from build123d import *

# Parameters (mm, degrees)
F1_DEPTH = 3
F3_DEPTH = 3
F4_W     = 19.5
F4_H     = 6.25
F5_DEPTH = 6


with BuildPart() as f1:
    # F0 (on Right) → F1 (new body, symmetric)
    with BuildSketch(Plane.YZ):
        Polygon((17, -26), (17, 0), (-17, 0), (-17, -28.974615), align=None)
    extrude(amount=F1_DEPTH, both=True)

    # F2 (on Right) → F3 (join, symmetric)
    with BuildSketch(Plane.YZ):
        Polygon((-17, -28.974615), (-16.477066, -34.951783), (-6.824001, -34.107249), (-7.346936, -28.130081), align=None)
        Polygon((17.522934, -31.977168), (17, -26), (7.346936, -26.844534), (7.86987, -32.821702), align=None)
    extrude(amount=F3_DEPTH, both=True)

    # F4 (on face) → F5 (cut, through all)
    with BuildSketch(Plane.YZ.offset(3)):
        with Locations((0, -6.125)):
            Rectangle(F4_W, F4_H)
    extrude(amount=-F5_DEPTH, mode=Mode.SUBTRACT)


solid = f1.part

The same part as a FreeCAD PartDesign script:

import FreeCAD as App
import Part
import Sketcher
Q = App.Units.Quantity

doc = App.newDocument("Part")
body = doc.addObject("PartDesign::Body", "Body")

# Sketch on YZ plane
sketch1 = body.newObject("Sketcher::SketchObject", "Sketch")
sketch1.AttachmentSupport = (doc.getObject("YZ_Plane"), [""])
sketch1.MapMode = "FlatFace"
sketch1.addGeometry([
    Part.LineSegment(App.Vector(17, -26, 0), App.Vector(17, 0, 0)),
    Part.LineSegment(App.Vector(17, 0, 0), App.Vector(-17, 0, 0)),
    Part.LineSegment(App.Vector(-17, 0, 0), App.Vector(-17, -29, 0)),
    Part.LineSegment(App.Vector(-17, -29, 0), App.Vector(17, -26, 0)),
], False)
sketch1.addConstraint([
    Sketcher.Constraint("Coincident", 0, 2, 1, 1),
    Sketcher.Constraint("Coincident", 1, 2, 2, 1),
    Sketcher.Constraint("Coincident", 2, 2, 3, 1),
    Sketcher.Constraint("Coincident", 3, 2, 0, 1),
    Sketcher.Constraint("Vertical", 0),
    Sketcher.Constraint("Horizontal", 1),
    Sketcher.Constraint("Vertical", 2),
    Sketcher.Constraint("Symmetric", 0, 2, 1, 2, -1, 1),
    Sketcher.Constraint("DistanceX", 1, 2, 1, 1, Q("34 mm")),
    Sketcher.Constraint("DistanceY", 0, 1, 0, 2, Q("26 mm")),
    Sketcher.Constraint("Angle", 3, Q("5.000001 deg")),
])
pad1 = body.newObject("PartDesign::Pad", "Pad")
pad1.Profile = sketch1
pad1.Length = 6
pad1.Midplane = True

# Sketch on YZ plane
sketch2 = body.newObject("Sketcher::SketchObject", "Sketch001")
sketch2.AttachmentSupport = (doc.getObject("YZ_Plane"), [""])
sketch2.MapMode = "FlatFace"
sketch2.addGeometry([
    Part.LineSegment(App.Vector(-17, -29, 0), App.Vector(-16, -35, 0)),  # 0
    Part.LineSegment(App.Vector(-16, -35, 0), App.Vector(-7, -34, 0)),  # 1
    Part.LineSegment(App.Vector(-7, -34, 0), App.Vector(-7, -28, 0)),  # 2
    Part.LineSegment(App.Vector(-7, -28, 0), App.Vector(-17, -29, 0)),  # 3
    Part.LineSegment(App.Vector(18, -32, 0), App.Vector(17, -26, 0)),  # 4
    Part.LineSegment(App.Vector(17, -26, 0), App.Vector(7, -27, 0)),  # 5
    Part.LineSegment(App.Vector(7, -27, 0), App.Vector(8, -33, 0)),  # 6
    Part.LineSegment(App.Vector(8, -33, 0), App.Vector(18, -32, 0)),  # 7
], False)
sketch2.addConstraint([
    Sketcher.Constraint("Coincident", 0, 2, 1, 1),
    Sketcher.Constraint("Coincident", 1, 2, 2, 1),
    Sketcher.Constraint("Coincident", 2, 2, 3, 1),
    Sketcher.Constraint("Coincident", 3, 2, 0, 1),
    Sketcher.Constraint("Coincident", 4, 2, 5, 1),
    Sketcher.Constraint("Coincident", 5, 2, 6, 1),
    Sketcher.Constraint("Coincident", 6, 2, 7, 1),
    Sketcher.Constraint("Coincident", 7, 2, 4, 1),
    Sketcher.Constraint("Perpendicular", 0, 1),
    Sketcher.Constraint("Perpendicular", 1, 2),
    Sketcher.Constraint("Perpendicular", 2, 3),
    Sketcher.Constraint("Perpendicular", 3, 4),
    Sketcher.Constraint("Perpendicular", 4, 5),
    Sketcher.Constraint("Perpendicular", 5, 6),
    Sketcher.Constraint("Perpendicular", 6, 7),
    Sketcher.Constraint("Equal", 2, 4),
    Sketcher.Constraint("Equal", 3, 5),
    Sketcher.Constraint("Angle", 0, Q("-85.000004 deg")),
    Sketcher.Constraint("Distance", 0, Q("6 mm")),
    Sketcher.Constraint("DistanceX", 3, 2, -1, 1, Q("17 mm")),
    Sketcher.Constraint("DistanceX", -1, 1, 4, 2, Q("17 mm")),
    Sketcher.Constraint("DistanceY", 4, 2, -1, 1, Q("26 mm")),
    Sketcher.Constraint("DistanceX", 1, 2, -1, 1, Q("6.824001 mm")),
    Sketcher.Constraint("DistanceY", 1, 2, -1, 1, Q("34.107249 mm")),
])
pad2 = body.newObject("PartDesign::Pad", "Pad001")
pad2.Profile = sketch2
pad2.Length = 6
pad2.Midplane = True

# Sketch on YZ plane
sketch3 = body.newObject("Sketcher::SketchObject", "Sketch002")
sketch3.AttachmentSupport = (doc.getObject("YZ_Plane"), [""])
sketch3.MapMode = "FlatFace"
sketch3.AttachmentOffset = App.Placement(App.Vector(0, 0, 3), App.Rotation())
sketch3.addGeometry([
    Part.LineSegment(App.Vector(-10, -3, 0), App.Vector(-10, -9, 0)),
    Part.LineSegment(App.Vector(-10, -9, 0), App.Vector(10, -9, 0)),
    Part.LineSegment(App.Vector(10, -9, 0), App.Vector(10, -3, 0)),
    Part.LineSegment(App.Vector(10, -3, 0), App.Vector(-10, -3, 0)),
], False)
sketch3.addConstraint([
    Sketcher.Constraint("Coincident", 0, 2, 1, 1),
    Sketcher.Constraint("Coincident", 1, 2, 2, 1),
    Sketcher.Constraint("Coincident", 2, 2, 3, 1),
    Sketcher.Constraint("Coincident", 3, 2, 0, 1),
    Sketcher.Constraint("Vertical", 0),
    Sketcher.Constraint("Horizontal", 1),
    Sketcher.Constraint("Vertical", 2),
    Sketcher.Constraint("Horizontal", 3),
    Sketcher.Constraint("DistanceX", 1, 1, 1, 2, Q("19.5 mm")),
    Sketcher.Constraint("DistanceY", 2, 2, -1, 1, Q("3 mm")),
    Sketcher.Constraint("DistanceY", 0, 2, 0, 1, Q("6.25 mm")),
    Sketcher.Constraint("DistanceX", 0, 2, -1, 1, Q("9.75 mm")),
])
pocket1 = body.newObject("PartDesign::Pocket", "Pocket")
pocket1.Profile = sketch3
pocket1.Type = "ThroughAll"

doc.recompute()
